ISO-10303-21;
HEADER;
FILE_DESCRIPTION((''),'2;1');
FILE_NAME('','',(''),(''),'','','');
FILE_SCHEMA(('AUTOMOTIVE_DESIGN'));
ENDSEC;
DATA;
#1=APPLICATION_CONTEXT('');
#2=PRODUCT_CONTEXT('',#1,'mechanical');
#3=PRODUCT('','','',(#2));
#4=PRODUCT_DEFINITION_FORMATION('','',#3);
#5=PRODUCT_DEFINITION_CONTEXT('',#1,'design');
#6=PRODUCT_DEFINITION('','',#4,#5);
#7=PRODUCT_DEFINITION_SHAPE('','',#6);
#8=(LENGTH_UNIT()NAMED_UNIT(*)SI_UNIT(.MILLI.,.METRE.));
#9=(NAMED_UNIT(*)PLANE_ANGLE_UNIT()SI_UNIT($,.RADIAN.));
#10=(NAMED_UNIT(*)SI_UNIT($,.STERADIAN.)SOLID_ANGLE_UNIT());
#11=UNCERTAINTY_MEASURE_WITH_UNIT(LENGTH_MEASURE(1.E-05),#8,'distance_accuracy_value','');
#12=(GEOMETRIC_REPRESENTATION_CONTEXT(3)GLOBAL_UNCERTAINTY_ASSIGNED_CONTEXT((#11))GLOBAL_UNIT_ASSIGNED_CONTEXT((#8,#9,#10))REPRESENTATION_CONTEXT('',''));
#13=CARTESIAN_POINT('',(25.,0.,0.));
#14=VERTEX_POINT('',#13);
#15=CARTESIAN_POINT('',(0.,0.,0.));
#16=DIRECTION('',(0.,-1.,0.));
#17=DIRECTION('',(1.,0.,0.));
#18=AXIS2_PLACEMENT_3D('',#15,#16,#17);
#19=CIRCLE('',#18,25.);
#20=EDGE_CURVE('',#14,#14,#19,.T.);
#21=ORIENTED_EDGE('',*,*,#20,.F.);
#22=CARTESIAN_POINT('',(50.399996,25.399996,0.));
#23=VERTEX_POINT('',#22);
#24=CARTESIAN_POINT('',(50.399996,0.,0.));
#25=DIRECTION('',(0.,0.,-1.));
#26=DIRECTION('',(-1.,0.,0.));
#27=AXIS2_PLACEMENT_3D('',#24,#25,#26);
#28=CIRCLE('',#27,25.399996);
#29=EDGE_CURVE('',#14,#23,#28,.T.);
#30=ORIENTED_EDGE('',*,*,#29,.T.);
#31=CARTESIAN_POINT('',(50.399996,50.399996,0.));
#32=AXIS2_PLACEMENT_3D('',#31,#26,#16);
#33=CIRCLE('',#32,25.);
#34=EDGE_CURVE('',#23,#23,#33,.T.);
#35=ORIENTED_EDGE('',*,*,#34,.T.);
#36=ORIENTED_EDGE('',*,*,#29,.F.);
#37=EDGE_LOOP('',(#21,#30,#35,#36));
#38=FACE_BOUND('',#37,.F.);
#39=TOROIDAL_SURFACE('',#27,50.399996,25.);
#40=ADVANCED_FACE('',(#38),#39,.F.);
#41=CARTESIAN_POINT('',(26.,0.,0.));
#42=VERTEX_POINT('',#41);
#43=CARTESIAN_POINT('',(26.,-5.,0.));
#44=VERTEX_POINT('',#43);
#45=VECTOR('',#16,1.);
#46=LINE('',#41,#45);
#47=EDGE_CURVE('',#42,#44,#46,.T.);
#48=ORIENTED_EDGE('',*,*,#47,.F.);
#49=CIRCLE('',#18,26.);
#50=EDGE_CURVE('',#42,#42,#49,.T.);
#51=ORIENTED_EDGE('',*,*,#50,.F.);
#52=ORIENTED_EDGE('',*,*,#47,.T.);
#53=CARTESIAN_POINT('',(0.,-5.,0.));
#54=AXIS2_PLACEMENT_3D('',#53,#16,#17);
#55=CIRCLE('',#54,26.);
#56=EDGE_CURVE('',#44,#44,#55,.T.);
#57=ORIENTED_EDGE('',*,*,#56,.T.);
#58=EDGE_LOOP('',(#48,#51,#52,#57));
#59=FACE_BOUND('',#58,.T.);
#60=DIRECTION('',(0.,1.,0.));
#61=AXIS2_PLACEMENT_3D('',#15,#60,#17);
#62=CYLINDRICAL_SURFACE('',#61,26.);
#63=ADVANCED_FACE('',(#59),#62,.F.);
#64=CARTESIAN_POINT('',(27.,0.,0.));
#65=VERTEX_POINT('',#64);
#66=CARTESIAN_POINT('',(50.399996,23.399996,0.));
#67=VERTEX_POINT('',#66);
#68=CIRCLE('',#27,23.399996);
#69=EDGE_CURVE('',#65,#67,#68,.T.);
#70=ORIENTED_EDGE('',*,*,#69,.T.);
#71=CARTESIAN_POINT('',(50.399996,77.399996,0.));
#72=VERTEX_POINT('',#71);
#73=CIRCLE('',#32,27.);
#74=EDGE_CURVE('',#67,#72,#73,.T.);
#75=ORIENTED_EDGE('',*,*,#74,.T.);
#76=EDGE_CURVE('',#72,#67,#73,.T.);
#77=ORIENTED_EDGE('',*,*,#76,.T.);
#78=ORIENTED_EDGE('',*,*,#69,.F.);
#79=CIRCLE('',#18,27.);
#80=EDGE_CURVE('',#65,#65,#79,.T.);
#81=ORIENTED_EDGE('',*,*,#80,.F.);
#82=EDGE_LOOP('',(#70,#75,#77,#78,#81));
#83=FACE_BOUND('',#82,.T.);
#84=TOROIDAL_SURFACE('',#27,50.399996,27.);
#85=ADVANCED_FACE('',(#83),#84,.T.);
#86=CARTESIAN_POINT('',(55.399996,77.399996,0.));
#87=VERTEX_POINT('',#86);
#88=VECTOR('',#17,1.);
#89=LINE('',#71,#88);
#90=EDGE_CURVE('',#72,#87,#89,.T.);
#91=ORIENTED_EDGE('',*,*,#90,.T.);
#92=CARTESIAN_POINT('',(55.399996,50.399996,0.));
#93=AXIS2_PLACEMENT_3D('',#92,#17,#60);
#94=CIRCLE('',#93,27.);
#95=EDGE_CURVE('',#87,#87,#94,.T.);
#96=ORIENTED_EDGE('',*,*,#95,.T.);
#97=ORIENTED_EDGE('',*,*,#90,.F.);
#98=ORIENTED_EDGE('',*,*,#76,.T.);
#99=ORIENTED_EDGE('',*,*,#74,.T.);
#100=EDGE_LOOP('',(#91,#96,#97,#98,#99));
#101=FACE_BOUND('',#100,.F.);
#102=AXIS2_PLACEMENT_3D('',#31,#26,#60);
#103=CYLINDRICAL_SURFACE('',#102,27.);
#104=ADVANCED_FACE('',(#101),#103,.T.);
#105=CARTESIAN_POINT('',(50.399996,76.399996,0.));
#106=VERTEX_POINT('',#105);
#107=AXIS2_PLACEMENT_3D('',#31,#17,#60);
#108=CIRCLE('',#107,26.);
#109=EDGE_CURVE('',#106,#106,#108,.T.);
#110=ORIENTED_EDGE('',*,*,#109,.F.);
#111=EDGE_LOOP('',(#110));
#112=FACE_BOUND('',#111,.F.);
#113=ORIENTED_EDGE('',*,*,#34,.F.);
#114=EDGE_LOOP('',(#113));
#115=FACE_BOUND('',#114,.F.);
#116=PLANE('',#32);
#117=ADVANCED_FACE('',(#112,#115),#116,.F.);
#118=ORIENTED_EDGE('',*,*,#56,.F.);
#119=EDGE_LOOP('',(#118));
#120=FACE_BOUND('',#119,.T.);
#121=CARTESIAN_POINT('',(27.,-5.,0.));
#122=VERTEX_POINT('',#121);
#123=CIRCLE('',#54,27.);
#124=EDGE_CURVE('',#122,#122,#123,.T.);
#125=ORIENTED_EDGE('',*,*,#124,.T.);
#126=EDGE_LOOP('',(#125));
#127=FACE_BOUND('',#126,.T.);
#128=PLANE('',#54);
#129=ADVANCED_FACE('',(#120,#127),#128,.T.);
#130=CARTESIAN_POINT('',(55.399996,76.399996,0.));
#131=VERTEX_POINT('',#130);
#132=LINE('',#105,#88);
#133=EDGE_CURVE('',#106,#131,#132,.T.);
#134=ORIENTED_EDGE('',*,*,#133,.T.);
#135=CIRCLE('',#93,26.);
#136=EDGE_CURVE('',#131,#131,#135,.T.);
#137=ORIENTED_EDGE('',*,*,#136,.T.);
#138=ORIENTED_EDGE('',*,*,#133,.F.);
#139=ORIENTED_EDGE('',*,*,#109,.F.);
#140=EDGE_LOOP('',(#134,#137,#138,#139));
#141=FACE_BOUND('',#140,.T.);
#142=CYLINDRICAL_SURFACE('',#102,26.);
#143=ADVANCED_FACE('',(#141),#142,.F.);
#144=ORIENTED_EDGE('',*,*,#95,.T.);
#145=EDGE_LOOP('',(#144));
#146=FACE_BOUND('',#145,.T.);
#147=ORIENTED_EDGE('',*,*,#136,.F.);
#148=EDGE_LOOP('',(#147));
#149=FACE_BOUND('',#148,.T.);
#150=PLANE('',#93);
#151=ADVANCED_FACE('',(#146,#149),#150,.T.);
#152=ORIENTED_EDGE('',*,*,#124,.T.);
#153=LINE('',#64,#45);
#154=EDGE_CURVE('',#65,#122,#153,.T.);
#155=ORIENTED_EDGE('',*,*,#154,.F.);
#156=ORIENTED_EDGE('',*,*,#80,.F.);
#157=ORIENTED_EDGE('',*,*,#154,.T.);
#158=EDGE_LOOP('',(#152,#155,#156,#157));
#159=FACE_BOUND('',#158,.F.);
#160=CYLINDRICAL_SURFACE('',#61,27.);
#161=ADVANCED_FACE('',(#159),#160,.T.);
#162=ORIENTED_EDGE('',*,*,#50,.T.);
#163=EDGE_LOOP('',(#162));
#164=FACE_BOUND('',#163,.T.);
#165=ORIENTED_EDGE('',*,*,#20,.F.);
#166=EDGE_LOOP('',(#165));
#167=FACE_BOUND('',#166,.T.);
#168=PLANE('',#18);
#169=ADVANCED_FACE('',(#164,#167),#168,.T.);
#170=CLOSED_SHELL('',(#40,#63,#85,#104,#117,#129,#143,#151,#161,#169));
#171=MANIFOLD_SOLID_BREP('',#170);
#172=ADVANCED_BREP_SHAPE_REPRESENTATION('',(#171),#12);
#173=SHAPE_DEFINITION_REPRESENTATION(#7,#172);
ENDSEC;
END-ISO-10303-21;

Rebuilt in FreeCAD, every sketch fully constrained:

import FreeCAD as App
import Part
import Sketcher
from FreeCAD import Vector
Q = App.Units.Quantity

doc = App.newDocument("Part")
body = doc.addObject("PartDesign::Body", "Body")

# Sketch on XZ plane
sketch1 = body.newObject("Sketcher::SketchObject", "Sketch")
sketch1.AttachmentSupport = (doc.getObject("XZ_Plane"), [""])
sketch1.MapMode = "FlatFace"
sketch1.addGeometry(Part.Circle(Vector(0, 0, 0), Vector(0, 0, 1), 27), False)
sketch1.addGeometry(Part.Circle(Vector(0, 0, 0), Vector(0, 0, 1), 25), False)
sketch1.addGeometry(Part.LineSegment(Vector(50.399996, 0, 0), Vector(50.399996, -10, 0)), True)  # axis
sketch1.addConstraint(Sketcher.Constraint("Vertical", 2))
sketch1.addConstraint(Sketcher.Constraint("Coincident", 0, 3, -1, 1))
sketch1.addConstraint(Sketcher.Constraint("Coincident", 1, 3, -1, 1))
sketch1.addConstraint(Sketcher.Constraint("PointOnObject", 2, 1, -1))
sketch1.addConstraint(Sketcher.Constraint("Diameter", 0, Q("54 mm")))
sketch1.addConstraint(Sketcher.Constraint("Diameter", 1, Q("50 mm")))
sketch1.addConstraint(Sketcher.Constraint("DistanceY", 2, 2, 2, 1, Q("10 mm")))
sketch1.addConstraint(Sketcher.Constraint("DistanceX", -1, 1, 2, 1, Q("50.399996 mm")))
revolution = body.newObject("PartDesign::Revolution", "Revolution")
revolution.Profile = sketch1
revolution.ReferenceAxis = (sketch1, ["Axis0"])
revolution.Angle = 90

# Sketch on XZ plane
sketch2 = body.newObject("Sketcher::SketchObject", "Sketch001")
sketch2.AttachmentSupport = (doc.getObject("XZ_Plane"), [""])
sketch2.MapMode = "FlatFace"
sketch2.addGeometry(Part.Circle(Vector(0, 0, 0), Vector(0, 0, 1), 27), False)
sketch2.addGeometry(Part.Circle(Vector(0, 0, 0), Vector(0, 0, 1), 26), False)
sketch2.addConstraint(Sketcher.Constraint("Coincident", 0, 3, -1, 1))
sketch2.addConstraint(Sketcher.Constraint("Coincident", 1, 3, -1, 1))
sketch2.addConstraint(Sketcher.Constraint("Diameter", 0, Q("54 mm")))
sketch2.addConstraint(Sketcher.Constraint("Diameter", 1, Q("52 mm")))
pad1 = body.newObject("PartDesign::Pad", "Pad")
pad1.Profile = sketch2
pad1.Length = 5

# Sketch on YZ plane
sketch3 = body.newObject("Sketcher::SketchObject", "Sketch002")
sketch3.AttachmentSupport = (doc.getObject("YZ_Plane"), [""])
sketch3.MapMode = "FlatFace"
sketch3.AttachmentOffset = App.Placement(Vector(0, 0, 50.399996), App.Rotation())
sketch3.addGeometry(Part.Circle(Vector(50.399996, 0, 0), Vector(0, 0, 1), 27), False)
sketch3.addGeometry(Part.Circle(Vector(50.399996, 0, 0), Vector(0, 0, 1), 26), False)
sketch3.addConstraint(Sketcher.Constraint("Coincident", 1, 3, 0, 3))
sketch3.addConstraint(Sketcher.Constraint("PointOnObject", 0, 3, -1))
sketch3.addConstraint(Sketcher.Constraint("Diameter", 0, Q("54 mm")))
sketch3.addConstraint(Sketcher.Constraint("Diameter", 1, Q("52 mm")))
sketch3.addConstraint(Sketcher.Constraint("DistanceX", -1, 1, 0, 3, Q("50.399996 mm")))
pad2 = body.newObject("PartDesign::Pad", "Pad001")
pad2.Profile = sketch3
pad2.Length = 5

doc.recompute()
